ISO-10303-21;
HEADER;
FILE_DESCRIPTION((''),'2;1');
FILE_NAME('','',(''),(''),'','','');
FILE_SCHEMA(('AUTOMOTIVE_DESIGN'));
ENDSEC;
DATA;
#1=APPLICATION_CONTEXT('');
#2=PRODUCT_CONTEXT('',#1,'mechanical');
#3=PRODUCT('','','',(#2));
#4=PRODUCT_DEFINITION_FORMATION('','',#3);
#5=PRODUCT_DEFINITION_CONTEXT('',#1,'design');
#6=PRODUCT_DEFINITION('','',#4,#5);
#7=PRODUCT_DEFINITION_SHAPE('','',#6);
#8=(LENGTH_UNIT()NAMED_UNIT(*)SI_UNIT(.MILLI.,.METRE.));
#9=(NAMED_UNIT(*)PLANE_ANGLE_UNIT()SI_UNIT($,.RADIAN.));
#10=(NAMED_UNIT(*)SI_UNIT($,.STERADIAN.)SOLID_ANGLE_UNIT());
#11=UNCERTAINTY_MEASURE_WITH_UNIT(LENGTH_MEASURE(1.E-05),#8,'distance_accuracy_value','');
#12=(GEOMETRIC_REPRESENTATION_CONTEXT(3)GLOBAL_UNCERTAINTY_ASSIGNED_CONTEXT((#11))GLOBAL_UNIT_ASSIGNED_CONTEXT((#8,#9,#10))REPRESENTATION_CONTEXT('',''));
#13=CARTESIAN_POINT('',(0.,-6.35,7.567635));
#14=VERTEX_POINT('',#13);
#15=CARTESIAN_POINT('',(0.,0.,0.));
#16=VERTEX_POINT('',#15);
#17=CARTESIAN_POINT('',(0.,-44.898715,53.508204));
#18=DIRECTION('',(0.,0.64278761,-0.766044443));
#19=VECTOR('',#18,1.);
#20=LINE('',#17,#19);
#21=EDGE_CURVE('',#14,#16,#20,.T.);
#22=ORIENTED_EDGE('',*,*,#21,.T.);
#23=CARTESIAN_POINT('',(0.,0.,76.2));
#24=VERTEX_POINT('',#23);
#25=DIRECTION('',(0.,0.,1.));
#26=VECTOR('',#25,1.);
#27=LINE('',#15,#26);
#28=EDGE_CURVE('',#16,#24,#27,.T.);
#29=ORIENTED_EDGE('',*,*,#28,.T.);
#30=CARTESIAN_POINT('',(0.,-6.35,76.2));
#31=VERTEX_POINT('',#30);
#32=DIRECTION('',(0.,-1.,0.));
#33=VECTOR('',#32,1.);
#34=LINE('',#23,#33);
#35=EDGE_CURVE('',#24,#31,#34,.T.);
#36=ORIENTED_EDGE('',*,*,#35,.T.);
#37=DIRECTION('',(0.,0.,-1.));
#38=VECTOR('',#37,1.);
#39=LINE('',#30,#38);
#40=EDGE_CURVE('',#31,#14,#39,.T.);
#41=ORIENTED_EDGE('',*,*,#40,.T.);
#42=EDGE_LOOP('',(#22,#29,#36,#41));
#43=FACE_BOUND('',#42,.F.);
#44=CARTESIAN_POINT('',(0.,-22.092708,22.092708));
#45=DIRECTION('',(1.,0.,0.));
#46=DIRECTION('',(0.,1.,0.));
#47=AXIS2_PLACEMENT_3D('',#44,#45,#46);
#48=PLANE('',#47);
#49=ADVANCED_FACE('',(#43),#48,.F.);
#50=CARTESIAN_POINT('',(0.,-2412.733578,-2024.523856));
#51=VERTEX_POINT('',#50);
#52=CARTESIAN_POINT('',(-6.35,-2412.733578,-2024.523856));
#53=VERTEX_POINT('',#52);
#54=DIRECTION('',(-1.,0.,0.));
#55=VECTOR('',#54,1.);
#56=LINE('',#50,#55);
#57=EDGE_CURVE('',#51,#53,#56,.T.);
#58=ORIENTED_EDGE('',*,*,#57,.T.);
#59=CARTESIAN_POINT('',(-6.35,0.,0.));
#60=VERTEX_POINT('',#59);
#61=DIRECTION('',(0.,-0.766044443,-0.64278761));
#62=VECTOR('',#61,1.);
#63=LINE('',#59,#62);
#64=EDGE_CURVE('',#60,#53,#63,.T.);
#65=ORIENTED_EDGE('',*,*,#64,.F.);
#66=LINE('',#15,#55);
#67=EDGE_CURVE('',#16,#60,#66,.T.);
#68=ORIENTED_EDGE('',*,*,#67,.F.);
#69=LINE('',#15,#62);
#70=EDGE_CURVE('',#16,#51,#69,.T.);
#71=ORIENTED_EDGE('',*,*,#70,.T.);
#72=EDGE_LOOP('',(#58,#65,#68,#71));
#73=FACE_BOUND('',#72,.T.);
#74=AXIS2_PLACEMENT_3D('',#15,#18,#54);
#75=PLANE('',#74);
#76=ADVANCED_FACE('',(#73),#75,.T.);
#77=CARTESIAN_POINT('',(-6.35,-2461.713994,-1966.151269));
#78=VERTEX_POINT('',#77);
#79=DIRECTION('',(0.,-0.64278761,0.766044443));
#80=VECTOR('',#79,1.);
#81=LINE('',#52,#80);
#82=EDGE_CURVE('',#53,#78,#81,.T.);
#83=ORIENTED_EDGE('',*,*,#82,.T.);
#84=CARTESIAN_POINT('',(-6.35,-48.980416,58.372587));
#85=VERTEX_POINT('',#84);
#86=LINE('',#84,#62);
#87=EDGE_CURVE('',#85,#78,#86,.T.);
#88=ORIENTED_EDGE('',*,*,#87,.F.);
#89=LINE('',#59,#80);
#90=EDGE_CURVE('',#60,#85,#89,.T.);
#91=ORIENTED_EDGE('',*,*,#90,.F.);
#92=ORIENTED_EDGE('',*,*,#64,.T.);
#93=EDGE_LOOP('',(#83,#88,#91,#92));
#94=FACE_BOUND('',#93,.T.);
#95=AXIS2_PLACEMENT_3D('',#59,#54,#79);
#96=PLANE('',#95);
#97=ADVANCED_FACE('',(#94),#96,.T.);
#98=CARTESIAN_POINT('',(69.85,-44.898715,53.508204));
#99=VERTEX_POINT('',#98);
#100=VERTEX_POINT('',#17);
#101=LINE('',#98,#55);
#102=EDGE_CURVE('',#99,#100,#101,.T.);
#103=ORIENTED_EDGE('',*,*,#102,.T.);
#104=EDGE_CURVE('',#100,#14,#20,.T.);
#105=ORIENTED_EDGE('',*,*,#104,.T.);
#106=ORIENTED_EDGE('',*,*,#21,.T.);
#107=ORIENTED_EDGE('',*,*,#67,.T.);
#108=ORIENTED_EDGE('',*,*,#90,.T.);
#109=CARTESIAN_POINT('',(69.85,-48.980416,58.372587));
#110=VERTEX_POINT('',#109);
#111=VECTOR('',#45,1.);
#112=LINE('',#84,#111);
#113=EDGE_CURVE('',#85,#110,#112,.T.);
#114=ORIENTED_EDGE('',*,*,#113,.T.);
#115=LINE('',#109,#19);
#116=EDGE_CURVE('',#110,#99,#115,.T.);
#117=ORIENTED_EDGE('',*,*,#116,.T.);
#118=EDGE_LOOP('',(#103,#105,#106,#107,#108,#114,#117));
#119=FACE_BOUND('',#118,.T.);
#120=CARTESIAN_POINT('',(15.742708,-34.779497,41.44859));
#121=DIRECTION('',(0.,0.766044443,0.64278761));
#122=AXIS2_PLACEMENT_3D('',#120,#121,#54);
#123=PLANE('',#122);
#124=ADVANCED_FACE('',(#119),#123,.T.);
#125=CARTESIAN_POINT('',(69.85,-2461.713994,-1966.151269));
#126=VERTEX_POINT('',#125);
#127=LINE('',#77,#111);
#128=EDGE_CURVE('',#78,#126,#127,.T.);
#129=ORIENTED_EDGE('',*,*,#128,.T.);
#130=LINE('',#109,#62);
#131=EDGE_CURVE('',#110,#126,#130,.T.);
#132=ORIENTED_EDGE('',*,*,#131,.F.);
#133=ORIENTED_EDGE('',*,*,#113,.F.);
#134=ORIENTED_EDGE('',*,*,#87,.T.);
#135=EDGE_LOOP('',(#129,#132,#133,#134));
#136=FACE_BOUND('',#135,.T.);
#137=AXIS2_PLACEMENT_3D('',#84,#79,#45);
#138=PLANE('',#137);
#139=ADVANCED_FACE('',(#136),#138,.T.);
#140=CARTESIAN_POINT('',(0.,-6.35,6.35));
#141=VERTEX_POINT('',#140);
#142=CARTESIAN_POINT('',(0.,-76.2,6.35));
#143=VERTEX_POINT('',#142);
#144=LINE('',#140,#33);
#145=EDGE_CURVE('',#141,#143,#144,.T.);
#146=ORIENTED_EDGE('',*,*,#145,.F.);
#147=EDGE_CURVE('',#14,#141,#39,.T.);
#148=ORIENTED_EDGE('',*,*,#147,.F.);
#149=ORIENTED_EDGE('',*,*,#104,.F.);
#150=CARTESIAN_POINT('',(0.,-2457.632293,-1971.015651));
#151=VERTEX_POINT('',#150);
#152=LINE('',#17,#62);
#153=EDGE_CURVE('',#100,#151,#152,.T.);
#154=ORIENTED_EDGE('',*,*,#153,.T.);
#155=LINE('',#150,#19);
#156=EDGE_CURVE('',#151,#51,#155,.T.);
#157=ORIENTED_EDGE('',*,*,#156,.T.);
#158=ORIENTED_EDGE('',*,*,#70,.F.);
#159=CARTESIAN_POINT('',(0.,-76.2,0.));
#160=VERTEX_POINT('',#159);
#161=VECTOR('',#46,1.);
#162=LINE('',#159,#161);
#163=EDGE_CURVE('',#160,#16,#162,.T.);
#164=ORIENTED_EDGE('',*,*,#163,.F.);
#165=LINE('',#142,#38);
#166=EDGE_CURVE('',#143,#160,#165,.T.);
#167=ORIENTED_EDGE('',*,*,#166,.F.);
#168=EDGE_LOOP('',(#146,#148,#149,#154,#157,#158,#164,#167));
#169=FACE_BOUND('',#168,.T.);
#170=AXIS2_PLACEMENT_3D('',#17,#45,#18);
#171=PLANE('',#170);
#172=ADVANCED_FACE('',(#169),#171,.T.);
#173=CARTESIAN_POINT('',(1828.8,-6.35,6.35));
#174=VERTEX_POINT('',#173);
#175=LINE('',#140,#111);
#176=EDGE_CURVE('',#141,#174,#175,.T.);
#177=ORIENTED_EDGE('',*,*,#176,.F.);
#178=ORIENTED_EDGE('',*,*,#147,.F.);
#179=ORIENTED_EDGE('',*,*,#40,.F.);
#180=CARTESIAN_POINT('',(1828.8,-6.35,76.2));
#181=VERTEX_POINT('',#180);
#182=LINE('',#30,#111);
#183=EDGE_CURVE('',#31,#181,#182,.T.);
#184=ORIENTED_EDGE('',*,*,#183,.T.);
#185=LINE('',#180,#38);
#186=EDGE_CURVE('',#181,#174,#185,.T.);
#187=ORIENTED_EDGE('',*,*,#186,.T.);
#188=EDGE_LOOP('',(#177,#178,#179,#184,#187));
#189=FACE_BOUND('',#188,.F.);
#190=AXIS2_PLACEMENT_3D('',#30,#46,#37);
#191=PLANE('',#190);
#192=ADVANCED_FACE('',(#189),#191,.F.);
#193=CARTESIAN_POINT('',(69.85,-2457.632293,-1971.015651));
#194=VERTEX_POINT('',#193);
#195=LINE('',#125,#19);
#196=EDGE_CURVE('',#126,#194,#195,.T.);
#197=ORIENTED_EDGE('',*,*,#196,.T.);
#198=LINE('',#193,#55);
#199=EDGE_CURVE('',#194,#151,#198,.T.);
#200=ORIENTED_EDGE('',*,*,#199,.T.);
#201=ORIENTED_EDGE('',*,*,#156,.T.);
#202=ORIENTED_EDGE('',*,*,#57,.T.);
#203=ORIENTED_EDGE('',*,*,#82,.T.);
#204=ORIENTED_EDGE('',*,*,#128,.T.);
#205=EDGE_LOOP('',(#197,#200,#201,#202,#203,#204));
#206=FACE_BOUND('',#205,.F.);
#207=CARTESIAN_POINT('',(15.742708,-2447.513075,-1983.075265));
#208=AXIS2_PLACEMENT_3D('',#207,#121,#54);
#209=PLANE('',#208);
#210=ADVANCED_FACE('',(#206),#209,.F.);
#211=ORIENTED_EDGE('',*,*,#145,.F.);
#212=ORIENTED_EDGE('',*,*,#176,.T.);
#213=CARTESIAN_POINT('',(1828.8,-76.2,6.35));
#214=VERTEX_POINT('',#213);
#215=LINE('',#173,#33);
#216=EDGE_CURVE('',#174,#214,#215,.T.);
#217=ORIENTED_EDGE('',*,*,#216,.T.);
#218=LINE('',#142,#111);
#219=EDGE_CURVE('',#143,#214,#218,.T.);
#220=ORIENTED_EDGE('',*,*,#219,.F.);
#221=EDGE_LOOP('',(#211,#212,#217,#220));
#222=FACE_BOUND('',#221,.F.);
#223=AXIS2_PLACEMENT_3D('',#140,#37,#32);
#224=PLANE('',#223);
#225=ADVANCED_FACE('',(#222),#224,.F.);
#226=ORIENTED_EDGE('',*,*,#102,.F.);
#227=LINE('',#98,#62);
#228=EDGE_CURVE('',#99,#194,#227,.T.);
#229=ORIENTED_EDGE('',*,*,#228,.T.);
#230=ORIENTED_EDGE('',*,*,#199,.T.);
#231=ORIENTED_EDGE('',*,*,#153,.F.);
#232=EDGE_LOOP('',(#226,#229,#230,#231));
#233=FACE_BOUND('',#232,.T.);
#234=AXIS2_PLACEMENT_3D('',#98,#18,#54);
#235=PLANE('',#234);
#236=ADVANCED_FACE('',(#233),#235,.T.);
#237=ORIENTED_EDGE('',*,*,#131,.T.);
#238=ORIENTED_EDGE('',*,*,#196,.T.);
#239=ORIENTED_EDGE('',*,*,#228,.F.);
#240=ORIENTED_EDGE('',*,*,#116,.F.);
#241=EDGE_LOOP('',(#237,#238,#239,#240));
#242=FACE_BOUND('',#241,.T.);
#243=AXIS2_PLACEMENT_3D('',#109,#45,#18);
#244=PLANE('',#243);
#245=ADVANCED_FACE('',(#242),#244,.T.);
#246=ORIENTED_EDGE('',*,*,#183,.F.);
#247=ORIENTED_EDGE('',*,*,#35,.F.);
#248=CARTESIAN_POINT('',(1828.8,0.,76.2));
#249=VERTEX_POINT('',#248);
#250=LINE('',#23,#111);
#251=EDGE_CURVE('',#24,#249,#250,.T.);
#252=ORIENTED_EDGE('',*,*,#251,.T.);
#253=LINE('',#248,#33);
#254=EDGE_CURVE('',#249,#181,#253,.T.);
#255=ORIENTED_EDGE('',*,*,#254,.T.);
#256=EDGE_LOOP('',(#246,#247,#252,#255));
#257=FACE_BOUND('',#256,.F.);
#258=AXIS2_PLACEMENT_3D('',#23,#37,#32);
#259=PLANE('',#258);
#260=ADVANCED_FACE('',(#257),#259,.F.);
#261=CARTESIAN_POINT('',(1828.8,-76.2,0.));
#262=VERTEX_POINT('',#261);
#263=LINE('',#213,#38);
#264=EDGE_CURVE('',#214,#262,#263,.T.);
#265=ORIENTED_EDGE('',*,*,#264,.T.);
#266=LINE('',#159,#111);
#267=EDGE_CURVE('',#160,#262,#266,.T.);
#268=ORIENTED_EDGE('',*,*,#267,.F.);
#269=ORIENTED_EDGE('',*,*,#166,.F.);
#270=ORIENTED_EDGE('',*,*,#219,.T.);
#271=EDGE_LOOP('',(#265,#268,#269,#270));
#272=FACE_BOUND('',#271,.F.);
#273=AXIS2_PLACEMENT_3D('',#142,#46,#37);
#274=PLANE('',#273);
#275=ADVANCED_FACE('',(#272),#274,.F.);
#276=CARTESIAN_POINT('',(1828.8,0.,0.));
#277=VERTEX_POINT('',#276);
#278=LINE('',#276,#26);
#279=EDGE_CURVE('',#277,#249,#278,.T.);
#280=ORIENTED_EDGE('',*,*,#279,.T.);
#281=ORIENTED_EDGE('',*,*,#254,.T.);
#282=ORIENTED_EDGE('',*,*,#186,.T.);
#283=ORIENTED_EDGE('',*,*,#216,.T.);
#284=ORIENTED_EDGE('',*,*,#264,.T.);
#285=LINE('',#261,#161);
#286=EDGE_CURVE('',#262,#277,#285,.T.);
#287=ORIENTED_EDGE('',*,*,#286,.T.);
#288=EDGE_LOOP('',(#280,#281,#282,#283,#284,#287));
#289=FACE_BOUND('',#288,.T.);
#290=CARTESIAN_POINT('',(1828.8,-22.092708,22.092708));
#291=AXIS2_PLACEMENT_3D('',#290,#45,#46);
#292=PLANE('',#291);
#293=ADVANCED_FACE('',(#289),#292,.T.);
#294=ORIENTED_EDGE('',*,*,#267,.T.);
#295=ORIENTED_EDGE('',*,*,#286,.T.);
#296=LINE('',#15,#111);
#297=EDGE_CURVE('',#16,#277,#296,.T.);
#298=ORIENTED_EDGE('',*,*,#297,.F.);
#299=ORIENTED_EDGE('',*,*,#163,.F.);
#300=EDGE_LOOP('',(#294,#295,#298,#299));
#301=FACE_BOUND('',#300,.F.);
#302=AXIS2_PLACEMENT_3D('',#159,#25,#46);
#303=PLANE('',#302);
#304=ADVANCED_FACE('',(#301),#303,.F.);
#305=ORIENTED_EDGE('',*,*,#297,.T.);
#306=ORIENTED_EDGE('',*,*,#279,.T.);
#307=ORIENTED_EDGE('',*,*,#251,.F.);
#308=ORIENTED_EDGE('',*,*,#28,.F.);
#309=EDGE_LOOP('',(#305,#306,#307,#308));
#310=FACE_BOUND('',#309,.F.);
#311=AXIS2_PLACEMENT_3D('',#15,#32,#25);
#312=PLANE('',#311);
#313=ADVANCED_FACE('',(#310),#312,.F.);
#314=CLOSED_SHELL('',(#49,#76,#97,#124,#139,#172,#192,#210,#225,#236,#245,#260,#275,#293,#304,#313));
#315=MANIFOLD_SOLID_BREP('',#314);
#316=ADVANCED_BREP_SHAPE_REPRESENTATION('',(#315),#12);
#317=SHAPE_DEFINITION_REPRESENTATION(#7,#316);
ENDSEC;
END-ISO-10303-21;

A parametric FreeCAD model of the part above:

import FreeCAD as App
import Part
import Sketcher
Q = App.Units.Quantity

doc = App.newDocument("Part")
body = doc.addObject("PartDesign::Body", "Body")

# Sketch on YZ plane
sketch1 = doc.addObject("Sketcher::SketchObject", "Sketch")
body.addObject(sketch1)
sketch1.AttachmentSupport = (doc.YZ_Plane, [""])
sketch1.MapMode = "FlatFace"
sketch1.addGeometry(Part.LineSegment(App.Vector(-76, 0, 0), App.Vector(0, 0, 0)), False)
sketch1.addGeometry(Part.LineSegment(App.Vector(0, 0, 0), App.Vector(0, 76, 0)), False)
sketch1.addGeometry(Part.LineSegment(App.Vector(0, 76, 0), App.Vector(-6, 76, 0)), False)
sketch1.addGeometry(Part.LineSegment(App.Vector(-6, 76, 0), App.Vector(-6, 6, 0)), False)
sketch1.addGeometry(Part.LineSegment(App.Vector(-6, 6, 0), App.Vector(-76, 6, 0)), False)
sketch1.addGeometry(Part.LineSegment(App.Vector(-76, 6, 0), App.Vector(-76, 0, 0)), False)
sketch1.addConstraint(Sketcher.Constraint("Coincident", 0, 2, 1, 1))
sketch1.addConstraint(Sketcher.Constraint("Coincident", 1, 2, 2, 1))
sketch1.addConstraint(Sketcher.Constraint("Coincident", 2, 2, 3, 1))
sketch1.addConstraint(Sketcher.Constraint("Coincident", 3, 2, 4, 1))
sketch1.addConstraint(Sketcher.Constraint("Coincident", 4, 2, 5, 1))
sketch1.addConstraint(Sketcher.Constraint("Coincident", 5, 2, 0, 1))
sketch1.addConstraint(Sketcher.Constraint("Horizontal", 0))
sketch1.addConstraint(Sketcher.Constraint("Vertical", 1))
sketch1.addConstraint(Sketcher.Constraint("Horizontal", 2))
sketch1.addConstraint(Sketcher.Constraint("Vertical", 3))
sketch1.addConstraint(Sketcher.Constraint("Horizontal", 4))
sketch1.addConstraint(Sketcher.Constraint("Vertical", 5))
sketch1.addConstraint(Sketcher.Constraint("Coincident", 0, 2, -1, 1))
sketch1.addConstraint(Sketcher.Constraint("Equal", 0, 1))
sketch1.addConstraint(Sketcher.Constraint("Equal", 4, 3))
sketch1.addConstraint(Sketcher.Constraint("DistanceX", 0, 1, 0, 2, Q("3 in")))
sketch1.addConstraint(Sketcher.Constraint("DistanceX", 2, 2, 2, 1, Q("0.25 in")))
pad1 = doc.addObject("PartDesign::Pad", "Pad")
body.addObject(pad1)
pad1.Profile = sketch1
pad1.Length = Q("72 in")

# Sketch on an angled plane
sketch2 = doc.addObject("Sketcher::SketchObject", "Sketch001")
body.addObject(sketch2)
sketch2.Placement = App.Placement(App.Vector(0, 0, 0), App.Rotation(App.Vector(-1, 0, 0), App.Vector(0, -0.64278761, 0.766044443), App.Vector(0, 0.766044443, 0.64278761), "ZXY"))
sketch2.addGeometry(Part.LineSegment(App.Vector(0, 0, 0), App.Vector(6, 0, 0)), False)
sketch2.addGeometry(Part.LineSegment(App.Vector(6, 0, 0), App.Vector(6, 76, 0)), False)
sketch2.addGeometry(Part.LineSegment(App.Vector(6, 76, 0), App.Vector(-70, 76, 0)), False)
sketch2.addGeometry(Part.LineSegment(App.Vector(-70, 76, 0), App.Vector(-70, 70, 0)), False)
sketch2.addGeometry(Part.LineSegment(App.Vector(-70, 70, 0), App.Vector(0, 70, 0)), False)
sketch2.addGeometry(Part.LineSegment(App.Vector(0, 70, 0), App.Vector(0, 0, 0)), False)
sketch2.addConstraint(Sketcher.Constraint("Coincident", 0, 2, 1, 1))
sketch2.addConstraint(Sketcher.Constraint("Coincident", 1, 2, 2, 1))
sketch2.addConstraint(Sketcher.Constraint("Coincident", 2, 2, 3, 1))
sketch2.addConstraint(Sketcher.Constraint("Coincident", 3, 2, 4, 1))
sketch2.addConstraint(Sketcher.Constraint("Coincident", 4, 2, 5, 1))
sketch2.addConstraint(Sketcher.Constraint("Coincident", 5, 2, 0, 1))
sketch2.addConstraint(Sketcher.Constraint("Horizontal", 0))
sketch2.addConstraint(Sketcher.Constraint("Vertical", 1))
sketch2.addConstraint(Sketcher.Constraint("Horizontal", 2))
sketch2.addConstraint(Sketcher.Constraint("Vertical", 3))
sketch2.addConstraint(Sketcher.Constraint("Horizontal", 4))
sketch2.addConstraint(Sketcher.Constraint("Vertical", 5))
sketch2.addConstraint(Sketcher.Constraint("Coincident", 5, 2, -1, 1))
sketch2.addConstraint(Sketcher.Constraint("Equal", 2, 1))
sketch2.addConstraint(Sketcher.Constraint("Equal", 0, 3))
sketch2.addConstraint(Sketcher.Constraint("DistanceX", 2, 2, 2, 1, Q("3 in")))
sketch2.addConstraint(Sketcher.Constraint("DistanceX", 0, 1, 0, 2, Q("0.25 in")))
pad2 = doc.addObject("PartDesign::Pad", "Pad001")
body.addObject(pad2)
pad2.Profile = sketch2
pad2.Length = Q("124 in")
pad2.Reversed = True

doc.recompute()
